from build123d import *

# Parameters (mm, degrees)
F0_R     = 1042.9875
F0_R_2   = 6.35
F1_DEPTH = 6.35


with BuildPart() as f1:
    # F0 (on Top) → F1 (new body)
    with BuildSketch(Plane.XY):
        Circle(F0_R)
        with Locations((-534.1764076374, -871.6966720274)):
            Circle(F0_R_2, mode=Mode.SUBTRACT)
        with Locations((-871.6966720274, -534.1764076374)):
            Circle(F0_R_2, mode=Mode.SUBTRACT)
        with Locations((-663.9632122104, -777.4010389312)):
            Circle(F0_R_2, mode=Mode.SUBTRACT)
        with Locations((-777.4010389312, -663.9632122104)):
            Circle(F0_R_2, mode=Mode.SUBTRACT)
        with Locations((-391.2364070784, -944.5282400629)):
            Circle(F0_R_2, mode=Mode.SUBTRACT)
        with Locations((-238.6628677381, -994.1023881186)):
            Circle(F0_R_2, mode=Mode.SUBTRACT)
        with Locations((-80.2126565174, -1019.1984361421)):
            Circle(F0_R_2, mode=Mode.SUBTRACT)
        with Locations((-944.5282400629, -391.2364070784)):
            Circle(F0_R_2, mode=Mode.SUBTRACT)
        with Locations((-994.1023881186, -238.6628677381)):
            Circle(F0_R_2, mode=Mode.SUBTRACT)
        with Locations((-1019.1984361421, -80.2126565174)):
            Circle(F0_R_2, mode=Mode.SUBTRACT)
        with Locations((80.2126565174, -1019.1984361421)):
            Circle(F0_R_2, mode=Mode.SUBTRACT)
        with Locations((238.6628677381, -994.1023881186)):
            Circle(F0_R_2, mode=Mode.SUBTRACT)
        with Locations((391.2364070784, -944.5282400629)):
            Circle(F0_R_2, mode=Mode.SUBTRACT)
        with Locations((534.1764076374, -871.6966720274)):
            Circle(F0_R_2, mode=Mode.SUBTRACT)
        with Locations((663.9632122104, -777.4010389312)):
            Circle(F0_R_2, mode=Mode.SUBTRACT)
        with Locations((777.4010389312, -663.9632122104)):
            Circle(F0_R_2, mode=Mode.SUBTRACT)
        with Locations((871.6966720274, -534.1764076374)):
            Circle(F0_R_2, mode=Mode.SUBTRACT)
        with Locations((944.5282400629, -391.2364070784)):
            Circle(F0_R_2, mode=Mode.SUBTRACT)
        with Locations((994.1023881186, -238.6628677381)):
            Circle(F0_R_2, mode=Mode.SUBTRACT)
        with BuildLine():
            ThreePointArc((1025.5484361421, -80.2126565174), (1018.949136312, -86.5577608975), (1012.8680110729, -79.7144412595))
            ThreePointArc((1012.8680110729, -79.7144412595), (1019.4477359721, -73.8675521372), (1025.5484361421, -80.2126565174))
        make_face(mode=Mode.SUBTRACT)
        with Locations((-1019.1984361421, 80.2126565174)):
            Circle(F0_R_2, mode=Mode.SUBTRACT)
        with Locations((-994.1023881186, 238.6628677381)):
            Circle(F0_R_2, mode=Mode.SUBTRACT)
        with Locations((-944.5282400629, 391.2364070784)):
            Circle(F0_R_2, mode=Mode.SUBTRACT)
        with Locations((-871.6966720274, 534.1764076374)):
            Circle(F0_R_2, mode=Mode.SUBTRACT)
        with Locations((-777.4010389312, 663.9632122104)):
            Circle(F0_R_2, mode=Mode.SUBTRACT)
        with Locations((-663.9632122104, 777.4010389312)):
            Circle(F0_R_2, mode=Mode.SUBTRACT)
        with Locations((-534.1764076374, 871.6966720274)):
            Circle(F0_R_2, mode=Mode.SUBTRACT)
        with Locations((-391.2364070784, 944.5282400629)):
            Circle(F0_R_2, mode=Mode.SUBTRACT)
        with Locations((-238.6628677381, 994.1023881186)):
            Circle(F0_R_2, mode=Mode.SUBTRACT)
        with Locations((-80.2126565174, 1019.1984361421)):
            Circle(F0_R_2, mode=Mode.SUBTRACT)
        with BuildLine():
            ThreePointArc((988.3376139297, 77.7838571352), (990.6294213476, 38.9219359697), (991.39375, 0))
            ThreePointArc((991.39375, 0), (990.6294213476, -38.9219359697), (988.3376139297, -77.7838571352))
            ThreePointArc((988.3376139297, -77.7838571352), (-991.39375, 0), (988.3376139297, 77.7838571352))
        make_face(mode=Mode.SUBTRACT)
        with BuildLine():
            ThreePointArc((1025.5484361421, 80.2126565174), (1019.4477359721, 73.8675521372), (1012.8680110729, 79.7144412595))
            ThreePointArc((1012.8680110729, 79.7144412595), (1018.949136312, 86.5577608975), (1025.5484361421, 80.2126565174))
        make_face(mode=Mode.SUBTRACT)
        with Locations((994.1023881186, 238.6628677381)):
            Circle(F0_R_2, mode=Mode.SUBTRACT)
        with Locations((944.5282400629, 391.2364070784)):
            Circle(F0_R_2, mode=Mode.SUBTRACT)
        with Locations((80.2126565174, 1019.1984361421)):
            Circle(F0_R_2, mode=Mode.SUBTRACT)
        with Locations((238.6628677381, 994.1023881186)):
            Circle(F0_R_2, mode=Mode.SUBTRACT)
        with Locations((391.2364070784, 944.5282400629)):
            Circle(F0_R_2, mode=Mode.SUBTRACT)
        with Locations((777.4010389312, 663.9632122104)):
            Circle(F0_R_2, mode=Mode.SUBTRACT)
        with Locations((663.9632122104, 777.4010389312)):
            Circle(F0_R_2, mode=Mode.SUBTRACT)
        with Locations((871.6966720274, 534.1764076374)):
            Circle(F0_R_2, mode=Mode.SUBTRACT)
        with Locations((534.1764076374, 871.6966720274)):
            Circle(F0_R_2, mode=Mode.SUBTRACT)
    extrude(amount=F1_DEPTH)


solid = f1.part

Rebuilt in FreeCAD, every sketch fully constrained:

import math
import FreeCAD as App
import Part
import Sketcher
Q = App.Units.Quantity

doc = App.newDocument("Part")
body = doc.addObject("PartDesign::Body", "Body")

sketch1 = doc.addObject("Sketcher::SketchObject", "Sketch")
body.addObject(sketch1)
sketch1.AttachmentSupport = (doc.XY_Plane, [""])
sketch1.MapMode = "FlatFace"
sketch1.addGeometry(Part.Circle(App.Vector(0, 0, 0), App.Vector(0, 0, 1), 1043), False)
sketch1.addGeometry(Part.Circle(App.Vector(-664, -777, 0), App.Vector(0, 0, 1), 6), False)
sketch1.addGeometry(Part.Circle(App.Vector(-534, -872, 0), App.Vector(0, 0, 1), 6), False)
sketch1.addGeometry(Part.Circle(App.Vector(-777, -664, 0), App.Vector(0, 0, 1), 6), False)
sketch1.addGeometry(Part.Circle(App.Vector(-872, -534, 0), App.Vector(0, 0, 1), 6), False)
sketch1.addGeometry(Part.Circle(App.Vector(-391, -945, 0), App.Vector(0, 0, 1), 6), False)
sketch1.addGeometry(Part.Circle(App.Vector(-239, -994, 0), App.Vector(0, 0, 1), 6), False)
sketch1.addGeometry(Part.Circle(App.Vector(-80, -1019, 0), App.Vector(0, 0, 1), 6), False)
sketch1.addGeometry(Part.Circle(App.Vector(-945, -391, 0), App.Vector(0, 0, 1), 6), False)
sketch1.addGeometry(Part.Circle(App.Vector(-994, -239, 0), App.Vector(0, 0, 1), 6), False)
sketch1.addGeometry(Part.Circle(App.Vector(-1019, -80, 0), App.Vector(0, 0, 1), 6), False)
sketch1.addGeometry(Part.Circle(App.Vector(80, -1019, 0), App.Vector(0, 0, 1), 6), False)
sketch1.addGeometry(Part.Circle(App.Vector(239, -994, 0), App.Vector(0, 0, 1), 6), False)
sketch1.addGeometry(Part.Circle(App.Vector(391, -945, 0), App.Vector(0, 0, 1), 6), False)
sketch1.addGeometry(Part.Circle(App.Vector(534, -872, 0), App.Vector(0, 0, 1), 6), False)
sketch1.addGeometry(Part.Circle(App.Vector(664, -777, 0), App.Vector(0, 0, 1), 6), False)
sketch1.addGeometry(Part.Circle(App.Vector(777, -664, 0), App.Vector(0, 0, 1), 6), False)
sketch1.addGeometry(Part.Circle(App.Vector(872, -534, 0), App.Vector(0, 0, 1), 6), False)
sketch1.addGeometry(Part.Circle(App.Vector(0, 0, 0), App.Vector(0, 0, 1), 991), False)
sketch1.addGeometry(Part.Circle(App.Vector(945, -391, 0), App.Vector(0, 0, 1), 6), False)
sketch1.addGeometry(Part.Circle(App.Vector(994, -239, 0), App.Vector(0, 0, 1), 6), False)
sketch1.addGeometry(Part.ArcOfCircle(Part.Circle(App.Vector(1019, -80, 0), App.Vector(0, 0, 1), 6), math.radians(0), math.radians(176)), False)
sketch1.addGeometry(Part.ArcOfCircle(Part.Circle(App.Vector(1019, -80, 0), App.Vector(0, 0, 1), 6), math.radians(176), math.radians(360)), False)
sketch1.addGeometry(Part.Circle(App.Vector(-1019, 80, 0), App.Vector(0, 0, 1), 6), False)
sketch1.addGeometry(Part.Circle(App.Vector(-994, 239, 0), App.Vector(0, 0, 1), 6), False)
sketch1.addGeometry(Part.Circle(App.Vector(-945, 391, 0), App.Vector(0, 0, 1), 6), False)
sketch1.addGeometry(Part.Circle(App.Vector(-872, 534, 0), App.Vector(0, 0, 1), 6), False)
sketch1.addGeometry(Part.Circle(App.Vector(-777, 664, 0), App.Vector(0, 0, 1), 6), False)
sketch1.addGeometry(Part.Circle(App.Vector(-664, 777, 0), App.Vector(0, 0, 1), 6), False)
sketch1.addGeometry(Part.Circle(App.Vector(-534, 872, 0), App.Vector(0, 0, 1), 6), False)
sketch1.addGeometry(Part.Circle(App.Vector(-391, 945, 0), App.Vector(0, 0, 1), 6), False)
sketch1.addGeometry(Part.Circle(App.Vector(-239, 994, 0), App.Vector(0, 0, 1), 6), False)
sketch1.addGeometry(Part.Circle(App.Vector(-80, 1019, 0), App.Vector(0, 0, 1), 6), False)
sketch1.addGeometry(Part.ArcOfCircle(Part.Circle(App.Vector(1019, 80, 0), App.Vector(0, 0, 1), 6), math.radians(0), math.radians(184)), False)
sketch1.addGeometry(Part.ArcOfCircle(Part.Circle(App.Vector(1019, 80, 0), App.Vector(0, 0, 1), 6), math.radians(-176), math.radians(0)), False)
sketch1.addGeometry(Part.Circle(App.Vector(994, 239, 0), App.Vector(0, 0, 1), 6), False)
sketch1.addGeometry(Part.Circle(App.Vector(945, 391, 0), App.Vector(0, 0, 1), 6), False)
sketch1.addGeometry(Part.Circle(App.Vector(80, 1019, 0), App.Vector(0, 0, 1), 6), False)
sketch1.addGeometry(Part.Circle(App.Vector(239, 994, 0), App.Vector(0, 0, 1), 6), False)
sketch1.addGeometry(Part.Circle(App.Vector(391, 945, 0), App.Vector(0, 0, 1), 6), False)
sketch1.addGeometry(Part.Circle(App.Vector(872, 534, 0), App.Vector(0, 0, 1), 6), False)
sketch1.addGeometry(Part.Circle(App.Vector(777, 664, 0), App.Vector(0, 0, 1), 6), False)
sketch1.addGeometry(Part.Circle(App.Vector(534, 872, 0), App.Vector(0, 0, 1), 6), False)
sketch1.addGeometry(Part.Circle(App.Vector(664, 777, 0), App.Vector(0, 0, 1), 6), False)
sketch1.addConstraint(Sketcher.Constraint("Tangent", 21, 1, 22, 2))
sketch1.addConstraint(Sketcher.Constraint("Coincident", 22, 1, 21, 2))
sketch1.addConstraint(Sketcher.Constraint("Tangent", 33, 1, 34, 2))
sketch1.addConstraint(Sketcher.Constraint("Coincident", 34, 1, 33, 2))
sketch1.addConstraint(Sketcher.Constraint("Coincident", 0, 3, -1, 1))
sketch1.addConstraint(Sketcher.Constraint("Coincident", 18, 3, -1, 1))
sketch1.addConstraint(Sketcher.Constraint("Equal", 1, 2))
sketch1.addConstraint(Sketcher.Constraint("Equal", 2, 3))
sketch1.addConstraint(Sketcher.Constraint("Equal", 3, 4))
sketch1.addConstraint(Sketcher.Constraint("Equal", 4, 5))
sketch1.addConstraint(Sketcher.Constraint("Equal", 5, 6))
sketch1.addConstraint(Sketcher.Constraint("Equal", 6, 7))
sketch1.addConstraint(Sketcher.Constraint("Equal", 7, 8))
sketch1.addConstraint(Sketcher.Constraint("Equal", 8, 9))
sketch1.addConstraint(Sketcher.Constraint("Equal", 9, 10))
sketch1.addConstraint(Sketcher.Constraint("Equal", 10, 11))
sketch1.addConstraint(Sketcher.Constraint("Equal", 11, 12))
sketch1.addConstraint(Sketcher.Constraint("Equal", 12, 13))
sketch1.addConstraint(Sketcher.Constraint("Equal", 13, 14))
sketch1.addConstraint(Sketcher.Constraint("Equal", 14, 15))
sketch1.addConstraint(Sketcher.Constraint("Equal", 15, 16))
sketch1.addConstraint(Sketcher.Constraint("Equal", 16, 17))
sketch1.addConstraint(Sketcher.Constraint("Equal", 17, 19))
sketch1.addConstraint(Sketcher.Constraint("Equal", 19, 20))
sketch1.addConstraint(Sketcher.Constraint("Equal", 20, 21))
sketch1.addConstraint(Sketcher.Constraint("Equal", 22, 23))
sketch1.addConstraint(Sketcher.Constraint("Equal", 23, 24))
sketch1.addConstraint(Sketcher.Constraint("Equal", 24, 25))
sketch1.addConstraint(Sketcher.Constraint("Equal", 25, 26))
sketch1.addConstraint(Sketcher.Constraint("Equal", 26, 27))
sketch1.addConstraint(Sketcher.Constraint("Equal", 27, 28))
sketch1.addConstraint(Sketcher.Constraint("Equal", 28, 29))
sketch1.addConstraint(Sketcher.Constraint("Equal", 29, 30))
sketch1.addConstraint(Sketcher.Constraint("Equal", 30, 31))
sketch1.addConstraint(Sketcher.Constraint("Equal", 31, 32))
sketch1.addConstraint(Sketcher.Constraint("Equal", 32, 33))
sketch1.addConstraint(Sketcher.Constraint("Equal", 34, 35))
sketch1.addConstraint(Sketcher.Constraint("Equal", 35, 36))
sketch1.addConstraint(Sketcher.Constraint("Equal", 36, 37))
sketch1.addConstraint(Sketcher.Constraint("Equal", 37, 38))
sketch1.addConstraint(Sketcher.Constraint("Equal", 38, 39))
sketch1.addConstraint(Sketcher.Constraint("Equal", 39, 40))
sketch1.addConstraint(Sketcher.Constraint("Equal", 40, 41))
sketch1.addConstraint(Sketcher.Constraint("Equal", 41, 42))
sketch1.addConstraint(Sketcher.Constraint("Equal", 42, 43))
sketch1.addConstraint(Sketcher.Constraint("Symmetric", 21, 3, 23, 3, -1, 1))
sketch1.addConstraint(Sketcher.Constraint("Symmetric", 20, 3, 24, 3, -1, 1))
sketch1.addConstraint(Sketcher.Constraint("Symmetric", 19, 3, 25, 3, -1, 1))
sketch1.addConstraint(Sketcher.Constraint("Symmetric", 17, 3, 26, 3, -1, 1))
sketch1.addConstraint(Sketcher.Constraint("Symmetric", 16, 3, 27, 3, -1, 1))
sketch1.addConstraint(Sketcher.Constraint("Symmetric", 15, 3, 28, 3, -1, 1))
sketch1.addConstraint(Sketcher.Constraint("Symmetric", 14, 3, 29, 3, -1, 1))
sketch1.addConstraint(Sketcher.Constraint("Symmetric", 13, 3, 30, 3, -1, 1))
sketch1.addConstraint(Sketcher.Constraint("Symmetric", 12, 3, 31, 3, -1, 1))
sketch1.addConstraint(Sketcher.Constraint("Symmetric", 11, 3, 32, 3, -1, 1))
sketch1.addConstraint(Sketcher.Constraint("Symmetric", 10, 3, 33, 3, -1, 1))
sketch1.addConstraint(Sketcher.Constraint("Symmetric", 9, 3, 35, 3, -1, 1))
sketch1.addConstraint(Sketcher.Constraint("Symmetric", 8, 3, 36, 3, -1, 1))
sketch1.addConstraint(Sketcher.Constraint("Symmetric", 7, 3, 37, 3, -1, 1))
sketch1.addConstraint(Sketcher.Constraint("Symmetric", 6, 3, 38, 3, -1, 1))
sketch1.addConstraint(Sketcher.Constraint("Symmetric", 5, 3, 39, 3, -1, 1))
sketch1.addConstraint(Sketcher.Constraint("Symmetric", 4, 3, 40, 3, -1, 1))
sketch1.addConstraint(Sketcher.Constraint("Symmetric", 3, 3, 41, 3, -1, 1))
sketch1.addConstraint(Sketcher.Constraint("Symmetric", 2, 3, 42, 3, -1, 1))
sketch1.addConstraint(Sketcher.Constraint("Symmetric", 1, 3, 43, 3, -1, 1))
sketch1.addConstraint(Sketcher.Constraint("Symmetric", 7, 3, 11, 3, -2))
sketch1.addConstraint(Sketcher.Constraint("Symmetric", 6, 3, 12, 3, -2))
sketch1.addConstraint(Sketcher.Constraint("Symmetric", 5, 3, 13, 3, -2))
sketch1.addConstraint(Sketcher.Constraint("Symmetric", 2, 3, 14, 3, -2))
sketch1.addConstraint(Sketcher.Constraint("Symmetric", 1, 3, 15, 3, -2))
sketch1.addConstraint(Sketcher.Constraint("Symmetric", 3, 3, 16, 3, -2))
sketch1.addConstraint(Sketcher.Constraint("Symmetric", 4, 3, 17, 3, -2))
sketch1.addConstraint(Sketcher.Constraint("Symmetric", 8, 3, 19, 3, -2))
sketch1.addConstraint(Sketcher.Constraint("Symmetric", 9, 3, 20, 3, -2))
sketch1.addConstraint(Sketcher.Constraint("Symmetric", 10, 3, 21, 3, -2))
sketch1.addConstraint(Sketcher.Constraint("Horizontal", 22, 3, 21, 1))
sketch1.addConstraint(Sketcher.Constraint("Horizontal", 34, 3, 33, 1))
sketch1.addConstraint(Sketcher.Constraint("Vertical", 22, 1, 34, 1))
sketch1.addConstraint(Sketcher.Constraint("Diameter", 1, Q("0.5 in")))
sketch1.addConstraint(Sketcher.Constraint("Diameter", 0, Q("82.125 in")))
sketch1.addConstraint(Sketcher.Constraint("Diameter", 18, Q("78.0625 in")))
sketch1.addConstraint(Sketcher.Constraint("DistanceX", 2, 3, 5, 3, 142.940001))
sketch1.addConstraint(Sketcher.Constraint("DistanceY", 5, 3, 1, 3, 167.127201))
sketch1.addConstraint(Sketcher.Constraint("DistanceY", 4, 3, 8, 3, 142.940001))
sketch1.addConstraint(Sketcher.Constraint("DistanceX", 8, 3, 3, 3, 167.127201))
sketch1.addConstraint(Sketcher.Constraint("DistanceY", 1, 3, -1, 1, 777.401039))
sketch1.addConstraint(Sketcher.Constraint("DistanceX", 3, 3, -1, 1, 777.401039))
sketch1.addConstraint(Sketcher.Constraint("DistanceY", 6, 3, -1, 1, 994.102388))
sketch1.addConstraint(Sketcher.Constraint("DistanceX", 9, 3, -1, 1, 994.102388))
sketch1.addConstraint(Sketcher.Constraint("DistanceX", -1, 1, 22, 1, 1012.868011))
sketch1.addConstraint(Sketcher.Constraint("DistanceY", 22, 1, -1, 1, 79.714441))
sketch1.addConstraint(Sketcher.Constraint("DistanceX", 3, 3, 2, 3, 243.224631))
sketch1.addConstraint(Sketcher.Constraint("DistanceY", 2, 3, 3, 3, 207.73346))
sketch1.addConstraint(Sketcher.Constraint("DistanceX", 4, 3, 1, 3, 207.73346))
sketch1.addConstraint(Sketcher.Constraint("DistanceY", 1, 3, 4, 3, 243.224631))
sketch1.addConstraint(Sketcher.Constraint("DistanceY", 5, 3, 2, 3, 72.831568))
sketch1.addConstraint(Sketcher.Constraint("DistanceX", 5, 3, 6, 3, 152.573539))
sketch1.addConstraint(Sketcher.Constraint("DistanceX", 6, 3, 7, 3, 158.450211))
sketch1.addConstraint(Sketcher.Constraint("DistanceY", 7, 3, 6, 3, 25.096048))
sketch1.addConstraint(Sketcher.Constraint("DistanceX", 8, 3, 4, 3, 72.831568))
sketch1.addConstraint(Sketcher.Constraint("DistanceY", 8, 3, 9, 3, 152.573539))
sketch1.addConstraint(Sketcher.Constraint("DistanceX", 10, 3, 9, 3, 25.096048))
pad1 = doc.addObject("PartDesign::Pad", "Pad")
body.addObject(pad1)
pad1.Profile = sketch1
pad1.Length = Q("0.25 in")

doc.recompute()
